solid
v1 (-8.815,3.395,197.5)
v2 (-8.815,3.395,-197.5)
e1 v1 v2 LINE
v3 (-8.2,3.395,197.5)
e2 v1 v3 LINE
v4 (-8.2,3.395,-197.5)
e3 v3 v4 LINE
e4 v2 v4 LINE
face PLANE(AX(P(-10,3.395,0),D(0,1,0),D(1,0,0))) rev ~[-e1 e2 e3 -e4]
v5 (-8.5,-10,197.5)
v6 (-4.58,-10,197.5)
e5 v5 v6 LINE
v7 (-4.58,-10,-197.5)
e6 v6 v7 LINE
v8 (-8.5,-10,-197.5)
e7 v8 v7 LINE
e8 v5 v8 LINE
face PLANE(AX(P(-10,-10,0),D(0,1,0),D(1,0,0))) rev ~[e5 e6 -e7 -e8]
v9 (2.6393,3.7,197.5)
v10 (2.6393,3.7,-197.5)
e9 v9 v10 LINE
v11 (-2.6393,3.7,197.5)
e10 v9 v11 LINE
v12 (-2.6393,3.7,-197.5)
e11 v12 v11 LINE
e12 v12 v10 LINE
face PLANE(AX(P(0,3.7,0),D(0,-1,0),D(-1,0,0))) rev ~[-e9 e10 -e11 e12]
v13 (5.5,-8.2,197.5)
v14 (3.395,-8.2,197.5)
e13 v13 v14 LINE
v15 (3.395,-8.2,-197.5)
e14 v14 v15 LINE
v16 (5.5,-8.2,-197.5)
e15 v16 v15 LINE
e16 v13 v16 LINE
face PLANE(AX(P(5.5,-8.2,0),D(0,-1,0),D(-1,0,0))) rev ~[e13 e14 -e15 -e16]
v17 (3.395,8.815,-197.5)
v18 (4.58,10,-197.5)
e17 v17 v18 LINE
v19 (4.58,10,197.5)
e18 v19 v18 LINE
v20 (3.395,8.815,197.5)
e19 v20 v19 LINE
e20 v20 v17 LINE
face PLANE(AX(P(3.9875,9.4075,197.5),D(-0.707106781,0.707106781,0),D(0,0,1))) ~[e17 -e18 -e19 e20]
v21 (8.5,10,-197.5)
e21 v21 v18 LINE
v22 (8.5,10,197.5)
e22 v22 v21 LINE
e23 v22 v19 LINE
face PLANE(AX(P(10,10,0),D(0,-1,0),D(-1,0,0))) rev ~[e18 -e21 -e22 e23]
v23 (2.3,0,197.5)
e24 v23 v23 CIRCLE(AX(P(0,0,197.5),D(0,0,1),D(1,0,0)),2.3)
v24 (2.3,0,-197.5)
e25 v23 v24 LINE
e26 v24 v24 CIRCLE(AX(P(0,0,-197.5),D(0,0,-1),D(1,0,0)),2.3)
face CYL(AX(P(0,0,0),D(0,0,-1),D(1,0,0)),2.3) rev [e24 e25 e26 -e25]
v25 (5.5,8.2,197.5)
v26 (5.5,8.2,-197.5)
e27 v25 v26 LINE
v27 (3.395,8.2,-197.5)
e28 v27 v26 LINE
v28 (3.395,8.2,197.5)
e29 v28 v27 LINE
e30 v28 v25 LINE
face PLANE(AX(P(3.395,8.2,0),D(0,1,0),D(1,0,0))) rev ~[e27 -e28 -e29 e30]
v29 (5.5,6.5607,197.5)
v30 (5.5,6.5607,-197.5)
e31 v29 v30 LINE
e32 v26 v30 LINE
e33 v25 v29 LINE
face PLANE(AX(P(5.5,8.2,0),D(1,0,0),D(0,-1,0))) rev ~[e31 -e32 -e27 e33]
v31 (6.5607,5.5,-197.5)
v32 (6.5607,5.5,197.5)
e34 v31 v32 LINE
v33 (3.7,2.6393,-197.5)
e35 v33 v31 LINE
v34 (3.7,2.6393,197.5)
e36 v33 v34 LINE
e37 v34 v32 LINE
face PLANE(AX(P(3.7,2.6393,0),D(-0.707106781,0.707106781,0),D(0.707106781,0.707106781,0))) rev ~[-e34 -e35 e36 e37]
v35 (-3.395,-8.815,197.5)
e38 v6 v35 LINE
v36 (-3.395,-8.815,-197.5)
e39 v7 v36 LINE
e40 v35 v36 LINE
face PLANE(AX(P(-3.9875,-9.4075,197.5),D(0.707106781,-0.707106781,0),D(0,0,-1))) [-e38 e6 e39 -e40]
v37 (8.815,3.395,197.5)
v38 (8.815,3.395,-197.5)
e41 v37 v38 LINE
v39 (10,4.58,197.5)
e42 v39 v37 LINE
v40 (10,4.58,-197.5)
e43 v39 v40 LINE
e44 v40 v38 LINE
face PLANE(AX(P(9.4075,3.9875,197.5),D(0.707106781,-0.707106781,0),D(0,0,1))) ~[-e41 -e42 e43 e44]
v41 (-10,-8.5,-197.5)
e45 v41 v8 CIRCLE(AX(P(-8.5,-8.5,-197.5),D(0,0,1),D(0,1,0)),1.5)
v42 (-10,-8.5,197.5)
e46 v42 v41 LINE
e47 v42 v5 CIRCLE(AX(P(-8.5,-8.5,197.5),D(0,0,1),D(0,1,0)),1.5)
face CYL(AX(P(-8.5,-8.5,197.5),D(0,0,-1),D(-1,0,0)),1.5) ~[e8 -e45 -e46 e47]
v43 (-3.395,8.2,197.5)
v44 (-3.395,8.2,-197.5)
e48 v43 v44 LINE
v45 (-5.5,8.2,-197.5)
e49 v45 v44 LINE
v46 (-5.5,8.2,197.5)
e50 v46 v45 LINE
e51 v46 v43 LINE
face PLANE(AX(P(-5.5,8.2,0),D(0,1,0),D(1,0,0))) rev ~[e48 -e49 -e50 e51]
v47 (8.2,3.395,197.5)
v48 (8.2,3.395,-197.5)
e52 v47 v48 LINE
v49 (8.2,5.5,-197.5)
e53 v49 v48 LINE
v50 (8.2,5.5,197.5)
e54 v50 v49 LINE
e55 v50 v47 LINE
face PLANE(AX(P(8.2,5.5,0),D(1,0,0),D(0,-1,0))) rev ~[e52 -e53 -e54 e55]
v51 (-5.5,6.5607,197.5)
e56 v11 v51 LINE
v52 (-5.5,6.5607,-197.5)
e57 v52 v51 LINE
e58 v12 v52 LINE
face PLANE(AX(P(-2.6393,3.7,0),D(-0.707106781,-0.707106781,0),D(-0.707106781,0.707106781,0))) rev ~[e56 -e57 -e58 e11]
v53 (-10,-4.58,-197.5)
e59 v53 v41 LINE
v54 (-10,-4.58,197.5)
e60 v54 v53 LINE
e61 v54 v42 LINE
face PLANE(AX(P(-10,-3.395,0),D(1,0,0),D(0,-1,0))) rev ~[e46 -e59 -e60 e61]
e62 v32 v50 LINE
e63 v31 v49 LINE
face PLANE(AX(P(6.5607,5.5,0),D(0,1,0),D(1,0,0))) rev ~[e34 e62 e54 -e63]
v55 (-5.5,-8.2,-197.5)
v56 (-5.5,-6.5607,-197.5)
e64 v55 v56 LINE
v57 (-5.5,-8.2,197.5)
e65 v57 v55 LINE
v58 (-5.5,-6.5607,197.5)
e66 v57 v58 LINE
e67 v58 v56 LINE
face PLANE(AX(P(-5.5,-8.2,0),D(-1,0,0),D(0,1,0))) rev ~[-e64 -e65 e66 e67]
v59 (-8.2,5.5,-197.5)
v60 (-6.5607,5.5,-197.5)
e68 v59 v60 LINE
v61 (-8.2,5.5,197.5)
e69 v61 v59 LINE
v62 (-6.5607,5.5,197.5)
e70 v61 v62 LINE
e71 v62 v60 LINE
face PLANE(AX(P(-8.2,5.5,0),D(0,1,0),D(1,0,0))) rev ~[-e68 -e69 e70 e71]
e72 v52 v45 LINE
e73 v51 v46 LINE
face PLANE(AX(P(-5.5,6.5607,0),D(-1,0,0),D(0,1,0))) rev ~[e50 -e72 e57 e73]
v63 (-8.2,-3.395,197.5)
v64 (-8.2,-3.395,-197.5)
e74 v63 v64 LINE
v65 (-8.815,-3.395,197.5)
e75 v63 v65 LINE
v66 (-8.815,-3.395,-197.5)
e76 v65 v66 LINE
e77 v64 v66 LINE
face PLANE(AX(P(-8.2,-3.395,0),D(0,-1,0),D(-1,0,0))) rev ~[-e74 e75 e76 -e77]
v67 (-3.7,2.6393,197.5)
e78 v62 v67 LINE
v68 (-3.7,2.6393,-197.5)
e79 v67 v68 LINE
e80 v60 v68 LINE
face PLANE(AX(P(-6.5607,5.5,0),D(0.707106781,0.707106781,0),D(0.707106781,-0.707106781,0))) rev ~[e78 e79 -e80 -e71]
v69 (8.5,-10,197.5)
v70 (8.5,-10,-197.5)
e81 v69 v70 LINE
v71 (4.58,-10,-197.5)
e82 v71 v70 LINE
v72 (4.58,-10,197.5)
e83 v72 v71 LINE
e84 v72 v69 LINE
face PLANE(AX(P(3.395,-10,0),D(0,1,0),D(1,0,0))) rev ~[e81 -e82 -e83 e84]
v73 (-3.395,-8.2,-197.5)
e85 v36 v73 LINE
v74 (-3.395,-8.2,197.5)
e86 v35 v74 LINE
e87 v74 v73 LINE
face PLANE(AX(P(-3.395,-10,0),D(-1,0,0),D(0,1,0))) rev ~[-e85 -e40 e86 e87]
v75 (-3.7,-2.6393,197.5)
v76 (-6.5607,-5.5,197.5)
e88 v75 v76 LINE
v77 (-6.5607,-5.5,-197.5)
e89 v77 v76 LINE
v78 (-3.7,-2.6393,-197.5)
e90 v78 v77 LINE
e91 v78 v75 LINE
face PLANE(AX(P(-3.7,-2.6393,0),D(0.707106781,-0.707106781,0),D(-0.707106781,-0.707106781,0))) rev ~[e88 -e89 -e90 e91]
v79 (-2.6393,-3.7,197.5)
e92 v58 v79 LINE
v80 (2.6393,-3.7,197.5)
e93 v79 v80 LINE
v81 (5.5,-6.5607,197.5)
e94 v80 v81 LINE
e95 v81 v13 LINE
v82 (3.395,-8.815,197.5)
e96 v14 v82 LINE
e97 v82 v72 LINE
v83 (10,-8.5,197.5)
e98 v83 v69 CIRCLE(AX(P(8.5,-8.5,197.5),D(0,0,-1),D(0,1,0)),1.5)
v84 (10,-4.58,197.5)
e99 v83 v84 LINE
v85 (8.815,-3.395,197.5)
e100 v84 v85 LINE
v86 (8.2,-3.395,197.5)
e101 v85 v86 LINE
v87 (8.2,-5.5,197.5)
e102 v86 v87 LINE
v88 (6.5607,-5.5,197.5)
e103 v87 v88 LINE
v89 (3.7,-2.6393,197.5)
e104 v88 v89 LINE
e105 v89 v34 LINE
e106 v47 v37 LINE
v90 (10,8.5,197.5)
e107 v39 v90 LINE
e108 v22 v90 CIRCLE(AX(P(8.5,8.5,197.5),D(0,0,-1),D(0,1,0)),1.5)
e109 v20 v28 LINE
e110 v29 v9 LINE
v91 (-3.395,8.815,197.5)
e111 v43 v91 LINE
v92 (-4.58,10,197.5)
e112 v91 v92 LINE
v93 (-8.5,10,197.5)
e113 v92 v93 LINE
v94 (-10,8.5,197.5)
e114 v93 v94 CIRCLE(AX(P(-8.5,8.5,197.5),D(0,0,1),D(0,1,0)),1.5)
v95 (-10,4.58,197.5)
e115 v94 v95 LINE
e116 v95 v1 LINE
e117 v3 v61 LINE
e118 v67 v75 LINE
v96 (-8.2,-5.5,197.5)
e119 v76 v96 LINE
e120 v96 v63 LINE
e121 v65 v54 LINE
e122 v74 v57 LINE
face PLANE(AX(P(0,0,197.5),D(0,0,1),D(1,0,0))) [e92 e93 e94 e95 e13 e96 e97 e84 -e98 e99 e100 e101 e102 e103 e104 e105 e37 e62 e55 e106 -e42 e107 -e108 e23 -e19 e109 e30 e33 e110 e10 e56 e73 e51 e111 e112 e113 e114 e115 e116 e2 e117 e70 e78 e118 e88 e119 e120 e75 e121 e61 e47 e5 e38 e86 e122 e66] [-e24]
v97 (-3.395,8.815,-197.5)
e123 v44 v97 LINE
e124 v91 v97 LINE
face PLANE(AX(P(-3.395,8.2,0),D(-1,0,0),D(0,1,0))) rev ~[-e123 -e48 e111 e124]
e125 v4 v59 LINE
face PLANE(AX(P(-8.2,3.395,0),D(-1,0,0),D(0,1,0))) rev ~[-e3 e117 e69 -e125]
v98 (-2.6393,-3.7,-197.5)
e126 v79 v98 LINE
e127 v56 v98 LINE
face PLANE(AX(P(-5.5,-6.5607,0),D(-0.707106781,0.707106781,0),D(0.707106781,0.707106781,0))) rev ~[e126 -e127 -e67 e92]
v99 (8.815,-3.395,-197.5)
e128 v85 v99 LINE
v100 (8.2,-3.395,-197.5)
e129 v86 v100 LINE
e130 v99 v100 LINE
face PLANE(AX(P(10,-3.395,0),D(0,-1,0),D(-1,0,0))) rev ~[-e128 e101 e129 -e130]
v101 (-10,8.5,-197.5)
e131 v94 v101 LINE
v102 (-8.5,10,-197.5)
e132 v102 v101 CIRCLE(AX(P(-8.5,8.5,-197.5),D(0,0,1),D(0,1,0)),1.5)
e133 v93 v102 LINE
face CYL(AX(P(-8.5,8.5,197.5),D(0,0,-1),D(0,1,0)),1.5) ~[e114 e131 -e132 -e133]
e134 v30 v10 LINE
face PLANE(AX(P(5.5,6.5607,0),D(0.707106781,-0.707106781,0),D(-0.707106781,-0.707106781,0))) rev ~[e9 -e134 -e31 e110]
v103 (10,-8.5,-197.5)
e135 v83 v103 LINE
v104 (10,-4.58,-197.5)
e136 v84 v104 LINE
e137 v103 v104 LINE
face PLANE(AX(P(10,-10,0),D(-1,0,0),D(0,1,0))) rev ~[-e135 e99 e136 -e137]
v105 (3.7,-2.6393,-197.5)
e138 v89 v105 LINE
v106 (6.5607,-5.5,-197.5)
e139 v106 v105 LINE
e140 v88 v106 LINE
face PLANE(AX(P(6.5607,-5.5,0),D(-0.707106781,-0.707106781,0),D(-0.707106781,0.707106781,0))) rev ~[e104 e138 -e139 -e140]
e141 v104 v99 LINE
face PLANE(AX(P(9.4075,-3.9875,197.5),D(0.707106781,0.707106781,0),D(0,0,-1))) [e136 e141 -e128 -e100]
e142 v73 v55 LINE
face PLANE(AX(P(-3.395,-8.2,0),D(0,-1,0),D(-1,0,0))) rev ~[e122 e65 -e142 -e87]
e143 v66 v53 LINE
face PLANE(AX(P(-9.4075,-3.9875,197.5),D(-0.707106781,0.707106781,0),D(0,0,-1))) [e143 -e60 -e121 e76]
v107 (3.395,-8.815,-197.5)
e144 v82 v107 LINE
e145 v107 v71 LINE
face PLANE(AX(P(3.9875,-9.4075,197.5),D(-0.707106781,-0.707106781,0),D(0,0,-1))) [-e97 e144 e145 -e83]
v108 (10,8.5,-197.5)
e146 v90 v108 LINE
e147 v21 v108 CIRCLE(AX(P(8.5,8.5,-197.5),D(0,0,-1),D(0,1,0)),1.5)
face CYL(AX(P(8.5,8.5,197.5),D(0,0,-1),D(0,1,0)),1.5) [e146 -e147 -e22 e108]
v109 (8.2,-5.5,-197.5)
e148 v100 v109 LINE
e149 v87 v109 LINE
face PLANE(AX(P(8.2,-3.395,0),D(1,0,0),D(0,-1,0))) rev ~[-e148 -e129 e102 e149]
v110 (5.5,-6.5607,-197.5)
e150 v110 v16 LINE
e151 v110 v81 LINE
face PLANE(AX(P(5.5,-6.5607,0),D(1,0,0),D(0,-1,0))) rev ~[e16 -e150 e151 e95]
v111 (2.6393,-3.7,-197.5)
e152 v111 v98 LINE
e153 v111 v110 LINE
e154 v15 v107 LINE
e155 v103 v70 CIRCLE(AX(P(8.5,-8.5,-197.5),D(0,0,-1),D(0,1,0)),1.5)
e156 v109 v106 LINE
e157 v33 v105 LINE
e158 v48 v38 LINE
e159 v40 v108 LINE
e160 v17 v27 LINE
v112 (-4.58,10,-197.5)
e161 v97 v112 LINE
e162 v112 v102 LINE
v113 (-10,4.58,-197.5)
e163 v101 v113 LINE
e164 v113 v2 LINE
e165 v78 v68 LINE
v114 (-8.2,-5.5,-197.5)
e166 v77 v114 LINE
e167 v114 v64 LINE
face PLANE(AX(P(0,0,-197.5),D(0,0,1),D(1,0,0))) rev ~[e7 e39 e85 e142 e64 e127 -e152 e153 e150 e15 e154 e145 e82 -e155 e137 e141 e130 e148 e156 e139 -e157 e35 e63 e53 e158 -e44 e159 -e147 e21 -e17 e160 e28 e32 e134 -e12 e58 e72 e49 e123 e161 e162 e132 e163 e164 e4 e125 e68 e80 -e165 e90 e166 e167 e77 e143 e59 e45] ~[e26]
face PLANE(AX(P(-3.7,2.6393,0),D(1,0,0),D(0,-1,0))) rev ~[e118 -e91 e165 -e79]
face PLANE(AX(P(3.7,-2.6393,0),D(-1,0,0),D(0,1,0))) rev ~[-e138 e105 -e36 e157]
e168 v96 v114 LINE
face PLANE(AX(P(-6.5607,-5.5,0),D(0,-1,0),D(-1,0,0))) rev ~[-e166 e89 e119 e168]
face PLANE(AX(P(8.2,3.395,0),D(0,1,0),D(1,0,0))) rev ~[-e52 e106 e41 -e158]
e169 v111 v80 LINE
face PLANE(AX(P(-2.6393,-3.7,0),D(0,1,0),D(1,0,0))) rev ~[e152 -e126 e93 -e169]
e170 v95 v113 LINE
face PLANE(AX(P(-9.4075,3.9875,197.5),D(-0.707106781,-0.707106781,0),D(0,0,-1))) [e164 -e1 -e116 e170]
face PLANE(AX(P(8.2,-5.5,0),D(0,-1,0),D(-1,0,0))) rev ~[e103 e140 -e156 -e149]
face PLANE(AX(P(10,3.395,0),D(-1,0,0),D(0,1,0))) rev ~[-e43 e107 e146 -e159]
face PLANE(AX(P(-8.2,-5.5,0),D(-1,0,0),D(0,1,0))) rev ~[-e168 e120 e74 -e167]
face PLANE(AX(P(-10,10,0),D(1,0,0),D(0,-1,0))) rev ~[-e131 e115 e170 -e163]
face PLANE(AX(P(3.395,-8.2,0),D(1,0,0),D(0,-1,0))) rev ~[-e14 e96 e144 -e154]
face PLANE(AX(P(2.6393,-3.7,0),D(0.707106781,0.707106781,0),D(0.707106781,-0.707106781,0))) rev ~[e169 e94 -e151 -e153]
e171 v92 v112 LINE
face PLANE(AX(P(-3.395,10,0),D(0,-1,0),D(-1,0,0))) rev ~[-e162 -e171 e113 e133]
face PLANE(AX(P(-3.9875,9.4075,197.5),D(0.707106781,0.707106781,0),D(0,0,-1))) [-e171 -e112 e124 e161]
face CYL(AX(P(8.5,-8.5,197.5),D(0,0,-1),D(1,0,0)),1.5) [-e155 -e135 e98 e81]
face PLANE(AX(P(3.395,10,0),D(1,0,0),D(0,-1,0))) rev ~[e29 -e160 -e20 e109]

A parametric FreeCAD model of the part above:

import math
import FreeCAD as App
import Part
import Sketcher
from FreeCAD import Vector
Q = App.Units.Quantity


def edges_at(feature, points):
    """Names of the edges that pass closest to the given points."""
    edges = feature.Shape.Edges
    near = lambda p: min(range(len(edges)), key=lambda i: edges[i].distToShape(Part.Vertex(*p))[0])
    return sorted({f"Edge{near(p) + 1}" for p in points})

doc = App.newDocument("Part")
body = doc.addObject("PartDesign::Body", "Body")

# Sketch on XY plane
sketch1 = body.newObject("Sketcher::SketchObject", "Sketch")
sketch1.AttachmentSupport = (doc.getObject("XY_Plane"), [""])
sketch1.MapMode = "FlatFace"
sketch1.addGeometry([
    Part.LineSegment(Vector(0, 2.3, 0), Vector(0, 3.7, 0)),  # 0
    Part.LineSegment(Vector(0, 3.7, 0), Vector(-2.6, 3.7, 0)),  # 1
    Part.LineSegment(Vector(-2.6, 3.7, 0), Vector(-5.5, 6.6, 0)),  # 2
    Part.LineSegment(Vector(-5.5, 6.6, 0), Vector(-5.5, 8.2, 0)),  # 3
    Part.LineSegment(Vector(-5.5, 8.2, 0), Vector(-3.4, 8.2, 0)),  # 4
    Part.LineSegment(Vector(-3.4, 8.2, 0), Vector(-3.4, 10, 0)),  # 5
    Part.LineSegment(Vector(-3.4, 10, 0), Vector(-10, 10, 0)),  # 6
    Part.LineSegment(Vector(-10, 10, 0), Vector(-10, 3.4, 0)),  # 7
    Part.LineSegment(Vector(-10, 3.4, 0), Vector(-8.2, 3.4, 0)),  # 8
    Part.LineSegment(Vector(-8.2, 3.4, 0), Vector(-8.2, 5.5, 0)),  # 9
    Part.LineSegment(Vector(-8.2, 5.5, 0), Vector(-6.6, 5.5, 0)),  # 10
    Part.LineSegment(Vector(-6.6, 5.5, 0), Vector(-3.7, 2.6, 0)),  # 11
    Part.LineSegment(Vector(-3.7, 2.6, 0), Vector(-3.7, 0, 0)),  # 12
    Part.LineSegment(Vector(-3.7, 0, 0), Vector(-2.3, 0, 0)),  # 13
    Part.ArcOfCircle(Part.Circle(Vector(0, 0, 0), Vector(0, 0, 1), 2.3), math.radians(90), math.radians(180)),  # 14
], False)
sketch1.addConstraint([
    Sketcher.Constraint("Coincident", 0, 2, 1, 1),
    Sketcher.Constraint("Coincident", 1, 2, 2, 1),
    Sketcher.Constraint("Coincident", 2, 2, 3, 1),
    Sketcher.Constraint("Coincident", 3, 2, 4, 1),
    Sketcher.Constraint("Coincident", 4, 2, 5, 1),
    Sketcher.Constraint("Coincident", 5, 2, 6, 1),
    Sketcher.Constraint("Coincident", 6, 2, 7, 1),
    Sketcher.Constraint("Coincident", 7, 2, 8, 1),
    Sketcher.Constraint("Coincident", 8, 2, 9, 1),
    Sketcher.Constraint("Coincident", 9, 2, 10, 1),
    Sketcher.Constraint("Coincident", 10, 2, 11, 1),
    Sketcher.Constraint("Coincident", 11, 2, 12, 1),
    Sketcher.Constraint("Coincident", 12, 2, 13, 1),
    Sketcher.Constraint("Coincident", 13, 2, 14, 2),
    Sketcher.Constraint("Coincident", 14, 1, 0, 1),
    Sketcher.Constraint("Vertical", 0),
    Sketcher.Constraint("Horizontal", 1),
    Sketcher.Constraint("Vertical", 3),
    Sketcher.Constraint("Horizontal", 4),
    Sketcher.Constraint("Vertical", 5),
    Sketcher.Constraint("Horizontal", 6),
    Sketcher.Constraint("Vertical", 7),
    Sketcher.Constraint("Horizontal", 8),
    Sketcher.Constraint("Vertical", 9),
    Sketcher.Constraint("Horizontal", 10),
    Sketcher.Constraint("Vertical", 12),
    Sketcher.Constraint("Horizontal", 13),
    Sketcher.Constraint("Coincident", 14, 3, -1, 1),
    Sketcher.Constraint("PointOnObject", 0, 2, -2),
    Sketcher.Constraint("PointOnObject", 12, 2, -1),
    Sketcher.Constraint("Parallel", 2, 11),
    Sketcher.Constraint("Equal", 13, 0),
    Sketcher.Constraint("Equal", 10, 3),
    Sketcher.Constraint("Equal", 8, 5),
    Sketcher.Constraint("Equal", 6, 7),
    Sketcher.Constraint("Equal", 4, 9),
    Sketcher.Constraint("Equal", 1, 12),
    Sketcher.Constraint("Radius", 14, 2.3),
    Sketcher.Constraint("Angle", 2, Q("135 deg")),
    Sketcher.Constraint("DistanceX", 8, 1, 8, 2, 1.8),
    Sketcher.Constraint("DistanceY", 1, 2, 5, 2, 6.3),
    Sketcher.Constraint("DistanceX", 2, 2, 11, 2, 1.8),
    Sketcher.Constraint("DistanceX", 13, 1, 13, 2, 1.4),
    Sketcher.Constraint("DistanceX", 4, 1, 4, 2, 2.105),
    Sketcher.Constraint("DistanceX", 1, 2, 1, 1, 2.6393),
])
pad1 = body.newObject("PartDesign::Pad", "Pad")
pad1.Profile = sketch1
pad1.Length = 395
pad1.Midplane = True
doc.recompute()

polarpattern = body.newObject("PartDesign::PolarPattern", "PolarPattern")
polarpattern.Originals = [pad1]
polarpattern.Axis = (doc.getObject("Z_Axis"), [""])
polarpattern.Angle = 360
polarpattern.Occurrences = 4
body.Tip = polarpattern
doc.recompute()

chamfer = body.newObject("PartDesign::Chamfer", "Chamfer")
chamfer.Base = (polarpattern, edges_at(polarpattern, [
    (-3.395, 10, 0),
    (3.395, 10, 0),
    (10, 3.395, 0),
    (10, -3.395, 0),
    (3.395, -10, 0),
    (-3.395, -10, 0),
    (-10, -3.395, 0),
    (-10, 3.395, 0),
]))
chamfer.Size = 1.185
doc.recompute()

fillet = body.newObject("PartDesign::Fillet", "Fillet")
fillet.Base = (chamfer, edges_at(chamfer, [
    (-10, 10, 0),
    (10, 10, 0),
    (-10, -10, 0),
    (10, -10, 0),
]))
fillet.Radius = 1.5

doc.recompute()
